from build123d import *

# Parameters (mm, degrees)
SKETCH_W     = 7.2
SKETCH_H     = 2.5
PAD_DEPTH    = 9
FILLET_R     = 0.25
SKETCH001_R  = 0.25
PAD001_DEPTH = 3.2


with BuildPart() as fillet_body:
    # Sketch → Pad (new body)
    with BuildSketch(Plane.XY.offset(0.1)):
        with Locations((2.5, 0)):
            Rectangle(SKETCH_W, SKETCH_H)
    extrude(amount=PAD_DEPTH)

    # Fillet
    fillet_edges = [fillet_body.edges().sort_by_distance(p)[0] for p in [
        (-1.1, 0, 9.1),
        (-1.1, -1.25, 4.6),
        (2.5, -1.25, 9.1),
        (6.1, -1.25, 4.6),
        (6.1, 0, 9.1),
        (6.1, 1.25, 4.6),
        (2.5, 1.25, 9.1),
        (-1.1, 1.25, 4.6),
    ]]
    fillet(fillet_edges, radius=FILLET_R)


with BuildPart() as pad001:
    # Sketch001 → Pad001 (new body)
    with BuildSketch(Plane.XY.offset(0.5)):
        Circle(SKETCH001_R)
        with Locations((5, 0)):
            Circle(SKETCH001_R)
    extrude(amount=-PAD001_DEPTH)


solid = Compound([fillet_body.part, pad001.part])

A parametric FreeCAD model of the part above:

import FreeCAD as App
import Part
import Sketcher
from FreeCAD import Vector
Q = App.Units.Quantity


def edges_at(feature, points):
    """Names of the edges that pass closest to the given points."""
    edges = feature.Shape.Edges
    near = lambda p: min(range(len(edges)), key=lambda i: edges[i].distToShape(Part.Vertex(*p))[0])
    return sorted({f"Edge{near(p) + 1}" for p in points})

doc = App.newDocument("Part")
params = doc.addObject("Spreadsheet::Sheet", "Params")
for row, (alias, value) in enumerate([
    ("sketch1_width", "7.2 mm"),
    ("sketch1_height", "2.5 mm"),
    ("pad1_length", "9 mm"),
    ("fillet_radius", "0.25 mm"),
    ("sketch2_diameter", "0.5 mm"),
    ("pad2_length", "3.2 mm"),
], start=1):
    params.set(f"A{row}", alias)
    params.set(f"B{row}", "=" + value)
    params.setAlias(f"B{row}", alias)

body = doc.addObject("PartDesign::Body", "Body")

# Sketch on XY plane
sketch1 = doc.addObject("Sketcher::SketchObject", "Sketch")
body.addObject(sketch1)
sketch1.AttachmentSupport = (doc.XY_Plane, [""])
sketch1.MapMode = "FlatFace"
sketch1.AttachmentOffset = App.Placement(Vector(0, 0, 0.1), App.Rotation())
sketch1.addGeometry(Part.LineSegment(Vector(-1.1, 1.25, 0), Vector(-1.1, -1.25, 0)), False)
sketch1.addGeometry(Part.LineSegment(Vector(-1.1, -1.25, 0), Vector(6.1, -1.25, 0)), False)
sketch1.addGeometry(Part.LineSegment(Vector(6.1, -1.25, 0), Vector(6.1, 1.25, 0)), False)
sketch1.addGeometry(Part.LineSegment(Vector(6.1, 1.25, 0), Vector(-1.1, 1.25, 0)), False)
sketch1.addConstraint(Sketcher.Constraint("Coincident", 0, 2, 1, 1))
sketch1.addConstraint(Sketcher.Constraint("Coincident", 1, 2, 2, 1))
sketch1.addConstraint(Sketcher.Constraint("Coincident", 2, 2, 3, 1))
sketch1.addConstraint(Sketcher.Constraint("Coincident", 3, 2, 0, 1))
sketch1.addConstraint(Sketcher.Constraint("Vertical", 0))
sketch1.addConstraint(Sketcher.Constraint("Horizontal", 1))
sketch1.addConstraint(Sketcher.Constraint("Vertical", 2))
sketch1.addConstraint(Sketcher.Constraint("Horizontal", 3))
sketch1.addConstraint(Sketcher.Constraint("DistanceX", 1, 1, 1, 2, Q("7.2 mm")))
sketch1.addConstraint(Sketcher.Constraint("DistanceY", 0, 2, 0, 1, Q("2.5 mm")))
sketch1.addConstraint(Sketcher.Constraint("DistanceX", 0, 2, -1, 1, Q("1.1 mm")))
sketch1.addConstraint(Sketcher.Constraint("DistanceY", 0, 2, -1, 1, Q("1.25 mm")))
sketch1.setExpression("Constraints[8]", "Params.sketch1_width")
sketch1.setExpression("Constraints[9]", "Params.sketch1_height")
pad1 = doc.addObject("PartDesign::Pad", "Pad")
body.addObject(pad1)
pad1.Profile = sketch1
pad1.setExpression("Length", "Params.pad1_length")
doc.recompute()

fillet = doc.addObject("PartDesign::Fillet", "Fillet")
body.addObject(fillet)
fillet.Base = (pad1, edges_at(pad1, [
    (-1.1, 0, 9.1),
    (-1.1, -1.25, 4.6),
    (2.5, -1.25, 9.1),
    (6.1, -1.25, 4.6),
    (6.1, 0, 9.1),
    (6.1, 1.25, 4.6),
    (2.5, 1.25, 9.1),
    (-1.1, 1.25, 4.6),
]))
fillet.setExpression("Radius", "Params.fillet_radius")
body2 = doc.addObject("PartDesign::Body", "Body001")
body2.AllowCompound = True

# Sketch on XY plane
sketch2 = doc.addObject("Sketcher::SketchObject", "Sketch001")
body2.addObject(sketch2)
sketch2.AttachmentSupport = (doc.getObject("XY_Plane001"), [""])
sketch2.MapMode = "FlatFace"
sketch2.AttachmentOffset = App.Placement(Vector(0, 0, 0.5), App.Rotation())
sketch2.addGeometry(Part.Circle(Vector(0, 0, 0), Vector(0, 0, 1), 0.25), False)
sketch2.addGeometry(Part.Circle(Vector(5, 0, 0), Vector(0, 0, 1), 0.25), False)
sketch2.addConstraint(Sketcher.Constraint("Coincident", 0, 3, -1, 1))
sketch2.addConstraint(Sketcher.Constraint("Equal", 0, 1))
sketch2.addConstraint(Sketcher.Constraint("PointOnObject", 1, 3, -1))
sketch2.addConstraint(Sketcher.Constraint("Diameter", 0, Q("0.5 mm")))
sketch2.addConstraint(Sketcher.Constraint("DistanceX", -1, 1, 1, 3, Q("5 mm")))
sketch2.setExpression("Constraints[3]", "Params.sketch2_diameter")
pad2 = doc.addObject("PartDesign::Pad", "Pad001")
body2.addObject(pad2)
pad2.Profile = sketch2
pad2.setExpression("Length", "Params.pad2_length")
pad2.Reversed = True

doc.recompute()
